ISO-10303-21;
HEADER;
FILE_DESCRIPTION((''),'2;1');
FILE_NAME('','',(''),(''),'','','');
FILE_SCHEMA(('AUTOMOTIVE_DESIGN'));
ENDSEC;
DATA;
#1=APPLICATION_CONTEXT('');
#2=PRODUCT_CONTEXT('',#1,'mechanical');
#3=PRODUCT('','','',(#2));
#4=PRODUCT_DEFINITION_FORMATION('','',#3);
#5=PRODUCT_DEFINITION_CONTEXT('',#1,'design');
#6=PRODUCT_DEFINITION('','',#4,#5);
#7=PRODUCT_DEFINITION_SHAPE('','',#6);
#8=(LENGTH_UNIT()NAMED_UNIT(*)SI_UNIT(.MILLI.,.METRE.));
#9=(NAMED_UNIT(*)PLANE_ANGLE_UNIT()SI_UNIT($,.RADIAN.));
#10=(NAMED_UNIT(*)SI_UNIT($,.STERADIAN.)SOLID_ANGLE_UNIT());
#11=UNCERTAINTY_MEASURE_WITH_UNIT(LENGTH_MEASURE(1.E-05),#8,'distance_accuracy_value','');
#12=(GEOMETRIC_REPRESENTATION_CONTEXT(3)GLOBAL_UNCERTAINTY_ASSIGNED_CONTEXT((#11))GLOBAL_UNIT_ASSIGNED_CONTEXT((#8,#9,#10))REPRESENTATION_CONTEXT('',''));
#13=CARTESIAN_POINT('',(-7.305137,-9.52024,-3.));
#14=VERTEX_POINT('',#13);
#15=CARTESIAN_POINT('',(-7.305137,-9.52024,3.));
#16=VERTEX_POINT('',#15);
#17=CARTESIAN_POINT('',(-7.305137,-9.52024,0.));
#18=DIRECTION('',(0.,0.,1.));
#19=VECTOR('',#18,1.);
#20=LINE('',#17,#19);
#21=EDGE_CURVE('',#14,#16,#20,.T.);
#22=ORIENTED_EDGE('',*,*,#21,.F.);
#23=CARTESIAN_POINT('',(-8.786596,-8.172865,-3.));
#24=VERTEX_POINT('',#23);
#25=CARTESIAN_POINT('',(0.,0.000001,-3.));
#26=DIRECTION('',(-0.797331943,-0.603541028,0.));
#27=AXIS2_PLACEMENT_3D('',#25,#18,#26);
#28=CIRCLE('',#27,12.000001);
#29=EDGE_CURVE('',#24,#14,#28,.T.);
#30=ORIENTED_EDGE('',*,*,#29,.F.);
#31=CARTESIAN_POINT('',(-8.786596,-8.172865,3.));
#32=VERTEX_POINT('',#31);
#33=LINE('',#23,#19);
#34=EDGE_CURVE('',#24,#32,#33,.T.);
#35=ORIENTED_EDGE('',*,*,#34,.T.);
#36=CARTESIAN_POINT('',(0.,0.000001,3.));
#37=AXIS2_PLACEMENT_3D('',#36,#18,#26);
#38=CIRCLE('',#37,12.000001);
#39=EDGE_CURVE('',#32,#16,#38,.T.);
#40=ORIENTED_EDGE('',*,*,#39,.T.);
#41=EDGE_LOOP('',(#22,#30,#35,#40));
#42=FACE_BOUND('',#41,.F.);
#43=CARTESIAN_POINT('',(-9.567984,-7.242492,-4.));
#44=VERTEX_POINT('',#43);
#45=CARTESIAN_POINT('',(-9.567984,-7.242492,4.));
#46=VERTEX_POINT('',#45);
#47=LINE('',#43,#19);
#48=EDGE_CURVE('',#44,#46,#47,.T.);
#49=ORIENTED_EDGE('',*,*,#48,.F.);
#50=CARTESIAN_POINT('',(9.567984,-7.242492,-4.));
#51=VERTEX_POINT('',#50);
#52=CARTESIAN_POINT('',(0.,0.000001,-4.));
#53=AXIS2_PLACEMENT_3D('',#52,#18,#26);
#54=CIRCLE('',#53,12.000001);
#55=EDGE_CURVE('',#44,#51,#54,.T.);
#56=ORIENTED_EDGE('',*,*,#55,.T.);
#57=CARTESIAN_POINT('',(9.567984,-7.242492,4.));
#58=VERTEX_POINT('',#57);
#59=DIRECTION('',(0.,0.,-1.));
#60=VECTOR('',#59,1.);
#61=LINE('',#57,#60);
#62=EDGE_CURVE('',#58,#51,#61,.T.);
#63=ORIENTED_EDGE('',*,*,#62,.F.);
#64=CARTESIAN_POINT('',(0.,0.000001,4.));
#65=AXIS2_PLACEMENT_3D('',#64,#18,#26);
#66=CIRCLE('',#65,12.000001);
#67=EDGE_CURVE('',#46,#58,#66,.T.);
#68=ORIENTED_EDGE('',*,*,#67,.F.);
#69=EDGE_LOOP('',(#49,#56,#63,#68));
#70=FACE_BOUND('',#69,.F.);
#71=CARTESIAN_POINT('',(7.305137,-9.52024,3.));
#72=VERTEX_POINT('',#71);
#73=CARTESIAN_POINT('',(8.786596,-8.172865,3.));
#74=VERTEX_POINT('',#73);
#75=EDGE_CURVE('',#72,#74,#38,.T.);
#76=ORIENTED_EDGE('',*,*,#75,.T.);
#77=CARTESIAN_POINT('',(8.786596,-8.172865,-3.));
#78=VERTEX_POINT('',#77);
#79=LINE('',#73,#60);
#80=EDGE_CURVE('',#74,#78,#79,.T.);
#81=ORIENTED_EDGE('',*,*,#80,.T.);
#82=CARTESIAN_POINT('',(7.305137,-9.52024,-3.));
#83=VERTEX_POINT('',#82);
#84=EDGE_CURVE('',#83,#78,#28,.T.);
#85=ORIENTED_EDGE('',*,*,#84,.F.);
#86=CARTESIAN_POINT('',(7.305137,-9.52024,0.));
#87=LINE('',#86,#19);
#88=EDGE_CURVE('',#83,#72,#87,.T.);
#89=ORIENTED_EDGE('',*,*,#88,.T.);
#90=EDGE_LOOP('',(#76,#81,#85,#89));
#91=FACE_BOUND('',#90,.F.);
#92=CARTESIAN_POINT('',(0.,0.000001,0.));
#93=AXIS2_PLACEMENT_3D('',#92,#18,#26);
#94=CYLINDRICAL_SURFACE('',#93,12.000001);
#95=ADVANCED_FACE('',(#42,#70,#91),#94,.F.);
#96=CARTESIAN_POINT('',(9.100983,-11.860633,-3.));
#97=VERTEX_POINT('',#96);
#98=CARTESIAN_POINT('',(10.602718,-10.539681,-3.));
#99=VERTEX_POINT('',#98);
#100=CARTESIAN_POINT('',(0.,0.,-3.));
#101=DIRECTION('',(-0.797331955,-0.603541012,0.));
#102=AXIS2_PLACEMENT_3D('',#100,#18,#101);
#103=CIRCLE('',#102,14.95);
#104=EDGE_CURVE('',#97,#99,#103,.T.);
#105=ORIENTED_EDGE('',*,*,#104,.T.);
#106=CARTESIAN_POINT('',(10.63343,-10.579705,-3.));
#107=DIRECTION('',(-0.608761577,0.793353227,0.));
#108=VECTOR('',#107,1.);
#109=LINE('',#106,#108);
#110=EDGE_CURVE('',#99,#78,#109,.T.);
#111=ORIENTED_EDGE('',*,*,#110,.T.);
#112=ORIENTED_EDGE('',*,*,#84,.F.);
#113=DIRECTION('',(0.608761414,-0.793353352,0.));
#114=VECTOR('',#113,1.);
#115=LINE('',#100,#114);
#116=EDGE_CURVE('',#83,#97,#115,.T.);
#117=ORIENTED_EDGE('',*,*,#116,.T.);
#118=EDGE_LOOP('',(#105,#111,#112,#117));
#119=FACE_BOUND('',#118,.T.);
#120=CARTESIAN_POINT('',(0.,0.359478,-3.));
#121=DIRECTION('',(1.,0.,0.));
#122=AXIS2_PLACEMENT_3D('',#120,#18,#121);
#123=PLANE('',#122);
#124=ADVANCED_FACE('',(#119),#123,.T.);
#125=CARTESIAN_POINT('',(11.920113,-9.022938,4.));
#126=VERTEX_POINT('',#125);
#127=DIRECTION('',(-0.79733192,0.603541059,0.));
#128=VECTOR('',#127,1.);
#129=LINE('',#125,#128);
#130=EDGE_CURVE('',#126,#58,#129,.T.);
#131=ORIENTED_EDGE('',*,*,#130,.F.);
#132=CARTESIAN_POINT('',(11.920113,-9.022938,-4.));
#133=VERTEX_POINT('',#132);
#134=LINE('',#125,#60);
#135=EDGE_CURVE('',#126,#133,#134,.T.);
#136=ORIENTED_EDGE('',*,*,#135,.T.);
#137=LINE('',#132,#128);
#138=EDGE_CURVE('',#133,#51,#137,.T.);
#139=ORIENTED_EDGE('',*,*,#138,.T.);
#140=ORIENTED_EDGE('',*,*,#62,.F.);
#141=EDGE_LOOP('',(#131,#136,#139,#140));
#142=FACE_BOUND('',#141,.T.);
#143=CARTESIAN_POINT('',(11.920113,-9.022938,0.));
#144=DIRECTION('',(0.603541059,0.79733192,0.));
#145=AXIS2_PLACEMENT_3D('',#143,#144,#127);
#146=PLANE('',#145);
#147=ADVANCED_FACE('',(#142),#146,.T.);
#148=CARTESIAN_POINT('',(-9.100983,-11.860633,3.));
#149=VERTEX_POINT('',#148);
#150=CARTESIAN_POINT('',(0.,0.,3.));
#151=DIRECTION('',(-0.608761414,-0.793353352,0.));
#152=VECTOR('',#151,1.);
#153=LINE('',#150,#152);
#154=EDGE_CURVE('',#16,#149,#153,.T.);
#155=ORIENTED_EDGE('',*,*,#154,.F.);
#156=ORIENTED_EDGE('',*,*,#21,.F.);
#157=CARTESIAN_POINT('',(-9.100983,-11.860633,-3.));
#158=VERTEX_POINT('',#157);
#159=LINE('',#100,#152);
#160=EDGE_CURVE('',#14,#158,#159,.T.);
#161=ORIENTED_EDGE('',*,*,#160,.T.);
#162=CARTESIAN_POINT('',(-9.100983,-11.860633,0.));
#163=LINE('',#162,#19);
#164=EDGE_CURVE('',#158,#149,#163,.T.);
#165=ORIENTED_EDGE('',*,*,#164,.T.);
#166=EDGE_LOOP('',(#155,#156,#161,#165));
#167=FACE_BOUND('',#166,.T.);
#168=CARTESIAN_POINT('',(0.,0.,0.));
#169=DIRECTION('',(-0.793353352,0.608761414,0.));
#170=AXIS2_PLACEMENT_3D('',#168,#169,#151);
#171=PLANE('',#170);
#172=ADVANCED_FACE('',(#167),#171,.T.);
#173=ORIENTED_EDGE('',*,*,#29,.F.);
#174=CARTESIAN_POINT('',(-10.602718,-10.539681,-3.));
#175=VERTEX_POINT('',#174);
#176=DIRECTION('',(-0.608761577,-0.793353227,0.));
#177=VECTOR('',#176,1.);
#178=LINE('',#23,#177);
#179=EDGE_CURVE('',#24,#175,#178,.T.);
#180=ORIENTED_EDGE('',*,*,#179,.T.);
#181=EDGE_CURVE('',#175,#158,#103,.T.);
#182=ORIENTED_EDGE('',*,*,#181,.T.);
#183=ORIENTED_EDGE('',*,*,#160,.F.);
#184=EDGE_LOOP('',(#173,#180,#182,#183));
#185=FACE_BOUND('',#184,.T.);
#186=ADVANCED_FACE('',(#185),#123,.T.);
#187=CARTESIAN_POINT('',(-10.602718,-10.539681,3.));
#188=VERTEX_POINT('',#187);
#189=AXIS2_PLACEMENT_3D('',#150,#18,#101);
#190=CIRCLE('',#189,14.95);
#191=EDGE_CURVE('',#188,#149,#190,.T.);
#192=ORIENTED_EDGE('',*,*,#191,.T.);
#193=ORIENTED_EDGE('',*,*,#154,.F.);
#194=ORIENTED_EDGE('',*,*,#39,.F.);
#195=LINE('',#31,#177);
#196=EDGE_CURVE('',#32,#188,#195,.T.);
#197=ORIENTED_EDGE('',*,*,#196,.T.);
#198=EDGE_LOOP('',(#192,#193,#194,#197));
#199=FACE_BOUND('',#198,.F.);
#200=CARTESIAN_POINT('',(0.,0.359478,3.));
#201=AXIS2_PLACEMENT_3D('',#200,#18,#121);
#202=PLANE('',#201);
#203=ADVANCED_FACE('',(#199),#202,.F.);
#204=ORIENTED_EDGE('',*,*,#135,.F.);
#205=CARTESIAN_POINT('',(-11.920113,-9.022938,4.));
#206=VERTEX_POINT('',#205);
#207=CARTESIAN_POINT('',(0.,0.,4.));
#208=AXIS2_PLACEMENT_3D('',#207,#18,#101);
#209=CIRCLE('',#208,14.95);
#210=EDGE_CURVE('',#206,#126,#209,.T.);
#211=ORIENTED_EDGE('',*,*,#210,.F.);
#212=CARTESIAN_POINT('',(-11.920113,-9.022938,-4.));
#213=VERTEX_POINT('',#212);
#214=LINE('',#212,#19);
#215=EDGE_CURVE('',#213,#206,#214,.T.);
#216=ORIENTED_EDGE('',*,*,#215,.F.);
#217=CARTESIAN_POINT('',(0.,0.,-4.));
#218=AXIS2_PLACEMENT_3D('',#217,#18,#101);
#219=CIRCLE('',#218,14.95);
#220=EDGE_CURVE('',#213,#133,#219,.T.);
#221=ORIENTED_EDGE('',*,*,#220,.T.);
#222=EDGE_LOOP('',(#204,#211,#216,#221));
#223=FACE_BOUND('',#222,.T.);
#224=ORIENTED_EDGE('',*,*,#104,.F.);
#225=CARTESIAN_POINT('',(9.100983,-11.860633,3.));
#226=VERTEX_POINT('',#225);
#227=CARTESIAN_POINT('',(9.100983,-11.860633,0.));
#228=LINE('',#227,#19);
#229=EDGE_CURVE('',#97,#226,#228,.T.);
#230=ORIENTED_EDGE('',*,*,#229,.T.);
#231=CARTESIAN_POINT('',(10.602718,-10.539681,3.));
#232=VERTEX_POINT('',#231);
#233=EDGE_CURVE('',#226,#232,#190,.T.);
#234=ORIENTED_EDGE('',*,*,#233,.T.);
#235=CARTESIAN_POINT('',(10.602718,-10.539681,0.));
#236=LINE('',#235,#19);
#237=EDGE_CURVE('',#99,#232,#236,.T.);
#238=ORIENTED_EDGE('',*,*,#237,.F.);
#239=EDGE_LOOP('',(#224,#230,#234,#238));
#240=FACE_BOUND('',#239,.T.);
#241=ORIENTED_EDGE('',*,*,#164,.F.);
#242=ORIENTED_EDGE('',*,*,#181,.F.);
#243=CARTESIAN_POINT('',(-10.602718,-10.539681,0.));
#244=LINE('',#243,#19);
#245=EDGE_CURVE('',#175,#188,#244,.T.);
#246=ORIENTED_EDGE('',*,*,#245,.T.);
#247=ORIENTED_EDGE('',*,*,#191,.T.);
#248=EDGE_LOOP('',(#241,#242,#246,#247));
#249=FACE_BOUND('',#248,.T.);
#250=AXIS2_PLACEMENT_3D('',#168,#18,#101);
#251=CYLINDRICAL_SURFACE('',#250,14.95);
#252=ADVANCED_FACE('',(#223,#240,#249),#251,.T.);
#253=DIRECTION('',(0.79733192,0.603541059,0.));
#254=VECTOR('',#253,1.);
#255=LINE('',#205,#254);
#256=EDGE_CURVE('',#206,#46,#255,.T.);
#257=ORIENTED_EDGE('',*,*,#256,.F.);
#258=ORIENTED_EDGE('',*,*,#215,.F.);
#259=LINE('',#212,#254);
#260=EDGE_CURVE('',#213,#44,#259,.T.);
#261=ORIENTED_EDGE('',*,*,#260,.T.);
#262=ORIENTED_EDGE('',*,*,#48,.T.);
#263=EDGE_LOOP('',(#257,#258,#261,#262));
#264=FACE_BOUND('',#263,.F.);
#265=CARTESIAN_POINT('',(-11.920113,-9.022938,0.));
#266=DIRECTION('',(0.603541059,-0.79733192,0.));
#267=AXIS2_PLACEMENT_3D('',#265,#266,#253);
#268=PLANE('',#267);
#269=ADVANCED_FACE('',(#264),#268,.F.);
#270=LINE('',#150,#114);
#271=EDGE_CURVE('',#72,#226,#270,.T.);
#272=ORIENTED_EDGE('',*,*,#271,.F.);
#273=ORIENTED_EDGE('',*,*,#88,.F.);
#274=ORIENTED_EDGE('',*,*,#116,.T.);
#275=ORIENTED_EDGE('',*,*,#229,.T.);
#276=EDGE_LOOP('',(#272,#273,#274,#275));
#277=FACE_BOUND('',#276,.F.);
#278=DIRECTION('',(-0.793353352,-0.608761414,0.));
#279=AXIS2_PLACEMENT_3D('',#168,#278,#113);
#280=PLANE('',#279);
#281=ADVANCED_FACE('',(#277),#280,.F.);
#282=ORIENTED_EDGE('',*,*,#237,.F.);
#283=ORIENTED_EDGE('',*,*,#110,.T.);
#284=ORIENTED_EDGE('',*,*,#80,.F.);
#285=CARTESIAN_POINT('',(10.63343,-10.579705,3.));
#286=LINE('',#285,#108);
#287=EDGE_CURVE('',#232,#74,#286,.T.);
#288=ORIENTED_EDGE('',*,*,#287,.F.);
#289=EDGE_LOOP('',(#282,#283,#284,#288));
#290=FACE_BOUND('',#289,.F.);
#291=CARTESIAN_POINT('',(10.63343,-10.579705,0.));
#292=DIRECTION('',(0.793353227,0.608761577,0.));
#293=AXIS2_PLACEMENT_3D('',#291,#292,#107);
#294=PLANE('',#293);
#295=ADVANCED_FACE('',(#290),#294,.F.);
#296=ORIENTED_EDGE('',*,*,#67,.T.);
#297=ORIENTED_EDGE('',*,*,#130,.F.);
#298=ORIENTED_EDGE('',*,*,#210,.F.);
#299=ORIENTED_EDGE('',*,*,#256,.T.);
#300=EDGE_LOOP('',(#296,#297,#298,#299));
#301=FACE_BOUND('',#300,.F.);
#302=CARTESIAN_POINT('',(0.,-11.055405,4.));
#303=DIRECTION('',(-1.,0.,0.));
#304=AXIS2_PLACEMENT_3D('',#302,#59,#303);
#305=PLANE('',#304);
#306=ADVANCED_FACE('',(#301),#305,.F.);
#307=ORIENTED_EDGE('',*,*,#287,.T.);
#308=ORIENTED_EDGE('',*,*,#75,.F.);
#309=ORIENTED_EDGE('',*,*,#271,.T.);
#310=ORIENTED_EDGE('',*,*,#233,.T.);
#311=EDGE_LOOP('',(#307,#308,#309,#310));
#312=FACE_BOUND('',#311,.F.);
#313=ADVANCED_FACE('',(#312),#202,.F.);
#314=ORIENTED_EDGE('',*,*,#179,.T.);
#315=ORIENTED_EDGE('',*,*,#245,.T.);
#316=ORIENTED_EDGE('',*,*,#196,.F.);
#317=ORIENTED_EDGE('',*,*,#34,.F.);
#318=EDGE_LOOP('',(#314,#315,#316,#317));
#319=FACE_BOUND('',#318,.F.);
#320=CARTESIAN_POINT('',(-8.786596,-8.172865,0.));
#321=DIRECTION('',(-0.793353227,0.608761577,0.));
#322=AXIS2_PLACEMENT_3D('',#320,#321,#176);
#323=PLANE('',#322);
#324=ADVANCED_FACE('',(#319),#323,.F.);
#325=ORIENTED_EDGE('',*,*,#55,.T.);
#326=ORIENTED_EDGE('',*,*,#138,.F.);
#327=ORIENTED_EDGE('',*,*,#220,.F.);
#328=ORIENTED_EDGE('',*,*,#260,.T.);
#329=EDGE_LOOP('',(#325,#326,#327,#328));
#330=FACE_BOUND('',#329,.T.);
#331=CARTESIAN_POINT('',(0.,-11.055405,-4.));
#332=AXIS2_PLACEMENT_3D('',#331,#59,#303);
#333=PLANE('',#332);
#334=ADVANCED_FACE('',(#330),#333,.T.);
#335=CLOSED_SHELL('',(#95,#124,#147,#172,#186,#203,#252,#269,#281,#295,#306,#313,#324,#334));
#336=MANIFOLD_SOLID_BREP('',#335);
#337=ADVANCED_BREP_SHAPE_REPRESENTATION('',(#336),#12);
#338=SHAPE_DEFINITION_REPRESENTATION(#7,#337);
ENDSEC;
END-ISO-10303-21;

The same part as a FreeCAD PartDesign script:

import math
import FreeCAD as App
import Part
import Sketcher

V = App.Vector
Q = App.Units.Quantity

doc = App.newDocument("Part")
body = doc.addObject("PartDesign::Body", "Body")

sketch1 = body.newObject("Sketcher::SketchObject", "Sketch")
sketch1.AttachmentSupport = (doc.getObject("XY_Plane"), [""])
sketch1.MapMode = "FlatFace"
sketch1.addGeometry(Part.ArcOfCircle(Part.Circle(V(0, 0, 0), V(0, 0, 1), 12), math.radians(-42.92748), math.radians(35.427476)), False)
sketch1.addGeometry(Part.LineSegment(V(9.778199, 6.956064, 0), V(11.923388, 9.101253, 0)), False)
sketch1.addGeometry(Part.LineSegment(V(11.923388, 9.101253, 0), V(10.606602, 10.606602, 0)), False)
sketch1.addGeometry(Part.LineSegment(V(10.606602, 10.606602, 0), V(8.485281, 8.485281, 0)), False)
sketch1.addGeometry(Part.ArcOfCircle(Part.Circle(V(0, 0.000002, 0), V(0, 0, 1), 11.999998), math.radians(44.999994), math.radians(135.000006)), False)
sketch1.addGeometry(Part.LineSegment(V(-8.485281, 8.485281, 0), V(-10.606602, 10.606602, 0)), False)
sketch1.addGeometry(Part.LineSegment(V(-10.606602, 10.606602, 0), V(-11.923388, 9.101253, 0)), False)
sketch1.addGeometry(Part.LineSegment(V(-11.923388, 9.101253, 0), V(-9.778199, 6.956064, 0)), False)
sketch1.addGeometry(Part.ArcOfCircle(Part.Circle(V(0, 0, 0), V(0, 0, 1), 12), math.radians(144.572524), math.radians(222.92748)), False)
sketch1.addGeometry(Part.LineSegment(V(-8.786596, -8.172865, 0), V(-10.63343, -10.579705, 0)), False)
sketch1.addGeometry(Part.LineSegment(V(-10.63343, -10.579705, 0), V(-9.131421, -11.9003, 0)), False)
sketch1.addGeometry(Part.LineSegment(V(-9.131421, -11.9003, 0), V(0, 0, 0)), False)
sketch1.addGeometry(Part.LineSegment(V(0, 0, 0), V(9.131421, -11.9003, 0)), False)
sketch1.addGeometry(Part.LineSegment(V(9.131421, -11.9003, 0), V(10.63343, -10.579705, 0)), False)
sketch1.addGeometry(Part.LineSegment(V(10.63343, -10.579705, 0), V(8.786596, -8.172865, 0)), False)
sketch1.addConstraint(Sketcher.Constraint("Coincident", 0, 2, 1, 1))
sketch1.addConstraint(Sketcher.Constraint("Coincident", 1, 2, 2, 1))
sketch1.addConstraint(Sketcher.Constraint("Coincident", 2, 2, 3, 1))
sketch1.addConstraint(Sketcher.Constraint("Coincident", 3, 2, 4, 1))
sketch1.addConstraint(Sketcher.Constraint("Coincident", 4, 2, 5, 1))
sketch1.addConstraint(Sketcher.Constraint("Coincident", 5, 2, 6, 1))
sketch1.addConstraint(Sketcher.Constraint("Coincident", 6, 2, 7, 1))
sketch1.addConstraint(Sketcher.Constraint("Coincident", 7, 2, 8, 1))
sketch1.addConstraint(Sketcher.Constraint("Coincident", 8, 2, 9, 1))
sketch1.addConstraint(Sketcher.Constraint("Coincident", 9, 2, 10, 1))
sketch1.addConstraint(Sketcher.Constraint("Coincident", 10, 2, 11, 1))
sketch1.addConstraint(Sketcher.Constraint("Coincident", 11, 2, 12, 1))
sketch1.addConstraint(Sketcher.Constraint("Coincident", 12, 2, 13, 1))
sketch1.addConstraint(Sketcher.Constraint("Coincident", 13, 2, 14, 1))
sketch1.addConstraint(Sketcher.Constraint("Coincident", 14, 2, 0, 1))
sketch1.addConstraint(Sketcher.Constraint("Coincident", 0, 3, -1, 1))
sketch1.addConstraint(Sketcher.Constraint("Coincident", 4, 3, -1, 1))
sketch1.addConstraint(Sketcher.Constraint("Coincident", 8, 3, -1, 1))
sketch1.addConstraint(Sketcher.Constraint("Coincident", 11, 2, -1, 1))
sketch1.addConstraint(Sketcher.Constraint("Radius", 0, Q("12 mm")))
sketch1.addConstraint(Sketcher.Constraint("Radius", 4, Q("11.999998 mm")))
sketch1.addConstraint(Sketcher.Constraint("Radius", 8, Q("12 mm")))
sketch1.addConstraint(Sketcher.Constraint("Distance", 2, Q("2 mm")))
sketch1.addConstraint(Sketcher.Constraint("Distance", 3, Q("3.000001 mm")))
sketch1.addConstraint(Sketcher.Constraint("Distance", 5, Q("3.000001 mm")))
sketch1.addConstraint(Sketcher.Constraint("Distance", 6, Q("2 mm")))
sketch1.addConstraint(Sketcher.Constraint("Distance", 10, Q("2.000001 mm")))
sketch1.addConstraint(Sketcher.Constraint("Distance", 11, Q("15 mm")))
sketch1.addConstraint(Sketcher.Constraint("Distance", 12, Q("15 mm")))
sketch1.addConstraint(Sketcher.Constraint("Distance", 13, Q("2.000001 mm")))
sketch1.addConstraint(Sketcher.Constraint("DistanceX", -1, 1, 0, 2, Q("9.778199 mm")))
sketch1.addConstraint(Sketcher.Constraint("DistanceX", 7, 2, -1, 1, Q("9.778199 mm")))
sketch1.addConstraint(Sketcher.Constraint("DistanceY", 10, 2, -1, 1, Q("11.9003 mm")))
sketch1.addConstraint(Sketcher.Constraint("DistanceY", 12, 2, -1, 1, Q("11.9003 mm")))
sketch1.addConstraint(Sketcher.Constraint("DistanceY", 4, 3, 2, 2, Q("10.6066 mm")))
sketch1.addConstraint(Sketcher.Constraint("DistanceY", 4, 3, 5, 2, Q("10.6066 mm")))
sketch1.addConstraint(Sketcher.Constraint("DistanceX", -1, 1, 3, 2, Q("8.485281 mm")))
sketch1.addConstraint(Sketcher.Constraint("DistanceX", 4, 2, -1, 1, Q("8.485281 mm")))
sketch1.addConstraint(Sketcher.Constraint("DistanceX", 9, 2, -1, 1, Q("10.63343 mm")))
sketch1.addConstraint(Sketcher.Constraint("DistanceX", -1, 1, 13, 2, Q("10.63343 mm")))
sketch1.addConstraint(Sketcher.Constraint("DistanceX", 0, 2, 1, 2, Q("2.145189 mm")))
sketch1.addConstraint(Sketcher.Constraint("DistanceY", 6, 2, 5, 2, Q("1.505349 mm")))
sketch1.addConstraint(Sketcher.Constraint("DistanceY", 8, 2, 7, 2, Q("15.128929 mm")))
sketch1.addConstraint(Sketcher.Constraint("DistanceY", 13, 2, 14, 2, Q("2.40684 mm")))
pad1 = body.newObject("PartDesign::Pad", "Pad")
pad1.Profile = sketch1
pad1.Length = 6
pad1.Midplane = True

sketch2 = body.newObject("Sketcher::SketchObject", "Sketch001")
sketch2.AttachmentSupport = (doc.getObject("XY_Plane"), [""])
sketch2.MapMode = "FlatFace"
sketch2.AttachmentOffset = App.Placement(V(0, 0, 2.5), App.Rotation())
sketch2.addGeometry(Part.Circle(V(0, 0, 0), V(0, 0, 1), 10), False)
sketch2.addConstraint(Sketcher.Constraint("Coincident", 0, 3, -1, 1))
sketch2.addConstraint(Sketcher.Constraint("Diameter", 0, Q("21 mm")))
pocket1 = body.newObject("PartDesign::Pocket", "Pocket")
pocket1.Profile = sketch2
pocket1.Length = 5
body2 = doc.addObject("PartDesign::Body", "Body001")

sketch3 = body2.newObject("Sketcher::SketchObject", "Sketch002")
sketch3.AttachmentSupport = (doc.getObject("XY_Plane001"), [""])
sketch3.MapMode = "FlatFace"
sketch3.addGeometry(Part.ArcOfCircle(Part.Circle(V(0, 0, 0), V(0, 0, 1), 12), math.radians(-143), math.radians(-37)), False)
sketch3.addGeometry(Part.LineSegment(V(-9.6, -7.2, 0), V(-11.9, -9, 0)), False)
sketch3.addGeometry(Part.ArcOfCircle(Part.Circle(V(0, 0, 0), V(0, 0, 1), 15), math.radians(-143), math.radians(-37)), False)
sketch3.addGeometry(Part.LineSegment(V(11.9, -9, 0), V(9.6, -7.2, 0)), False)
sketch3.addConstraint(Sketcher.Constraint("Coincident", 0, 1, 1, 1))
sketch3.addConstraint(Sketcher.Constraint("Coincident", 1, 2, 2, 1))
sketch3.addConstraint(Sketcher.Constraint("Coincident", 2, 2, 3, 1))
sketch3.addConstraint(Sketcher.Constraint("Coincident", 3, 2, 0, 2))
sketch3.addConstraint(Sketcher.Constraint("Coincident", 0, 3, -1, 1))
sketch3.addConstraint(Sketcher.Constraint("Coincident", 2, 3, -1, 1))
sketch3.addConstraint(Sketcher.Constraint("Horizontal", 1, 2, 2, 2))
sketch3.addConstraint(Sketcher.Constraint("Horizontal", 0, 1, 3, 2))
sketch3.addConstraint(Sketcher.Constraint("Radius", 0, Q("12.000001 mm")))
sketch3.addConstraint(Sketcher.Constraint("Radius", 2, Q("14.95 mm")))
sketch3.addConstraint(Sketcher.Constraint("DistanceY", 0, 1, -1, 1, Q("7.242492 mm")))
sketch3.addConstraint(Sketcher.Constraint("DistanceY", 2, 2, -1, 1, Q("9.022938 mm")))
pad2 = body2.newObject("PartDesign::Pad", "Pad001")
pad2.Profile = sketch3
pad2.Length = 8
pad2.Midplane = True
doc.recompute()

boolean = body2.newObject("PartDesign::Boolean", "Boolean")
boolean.Type = "Cut"
boolean.addObjects([body])

doc.recompute()
